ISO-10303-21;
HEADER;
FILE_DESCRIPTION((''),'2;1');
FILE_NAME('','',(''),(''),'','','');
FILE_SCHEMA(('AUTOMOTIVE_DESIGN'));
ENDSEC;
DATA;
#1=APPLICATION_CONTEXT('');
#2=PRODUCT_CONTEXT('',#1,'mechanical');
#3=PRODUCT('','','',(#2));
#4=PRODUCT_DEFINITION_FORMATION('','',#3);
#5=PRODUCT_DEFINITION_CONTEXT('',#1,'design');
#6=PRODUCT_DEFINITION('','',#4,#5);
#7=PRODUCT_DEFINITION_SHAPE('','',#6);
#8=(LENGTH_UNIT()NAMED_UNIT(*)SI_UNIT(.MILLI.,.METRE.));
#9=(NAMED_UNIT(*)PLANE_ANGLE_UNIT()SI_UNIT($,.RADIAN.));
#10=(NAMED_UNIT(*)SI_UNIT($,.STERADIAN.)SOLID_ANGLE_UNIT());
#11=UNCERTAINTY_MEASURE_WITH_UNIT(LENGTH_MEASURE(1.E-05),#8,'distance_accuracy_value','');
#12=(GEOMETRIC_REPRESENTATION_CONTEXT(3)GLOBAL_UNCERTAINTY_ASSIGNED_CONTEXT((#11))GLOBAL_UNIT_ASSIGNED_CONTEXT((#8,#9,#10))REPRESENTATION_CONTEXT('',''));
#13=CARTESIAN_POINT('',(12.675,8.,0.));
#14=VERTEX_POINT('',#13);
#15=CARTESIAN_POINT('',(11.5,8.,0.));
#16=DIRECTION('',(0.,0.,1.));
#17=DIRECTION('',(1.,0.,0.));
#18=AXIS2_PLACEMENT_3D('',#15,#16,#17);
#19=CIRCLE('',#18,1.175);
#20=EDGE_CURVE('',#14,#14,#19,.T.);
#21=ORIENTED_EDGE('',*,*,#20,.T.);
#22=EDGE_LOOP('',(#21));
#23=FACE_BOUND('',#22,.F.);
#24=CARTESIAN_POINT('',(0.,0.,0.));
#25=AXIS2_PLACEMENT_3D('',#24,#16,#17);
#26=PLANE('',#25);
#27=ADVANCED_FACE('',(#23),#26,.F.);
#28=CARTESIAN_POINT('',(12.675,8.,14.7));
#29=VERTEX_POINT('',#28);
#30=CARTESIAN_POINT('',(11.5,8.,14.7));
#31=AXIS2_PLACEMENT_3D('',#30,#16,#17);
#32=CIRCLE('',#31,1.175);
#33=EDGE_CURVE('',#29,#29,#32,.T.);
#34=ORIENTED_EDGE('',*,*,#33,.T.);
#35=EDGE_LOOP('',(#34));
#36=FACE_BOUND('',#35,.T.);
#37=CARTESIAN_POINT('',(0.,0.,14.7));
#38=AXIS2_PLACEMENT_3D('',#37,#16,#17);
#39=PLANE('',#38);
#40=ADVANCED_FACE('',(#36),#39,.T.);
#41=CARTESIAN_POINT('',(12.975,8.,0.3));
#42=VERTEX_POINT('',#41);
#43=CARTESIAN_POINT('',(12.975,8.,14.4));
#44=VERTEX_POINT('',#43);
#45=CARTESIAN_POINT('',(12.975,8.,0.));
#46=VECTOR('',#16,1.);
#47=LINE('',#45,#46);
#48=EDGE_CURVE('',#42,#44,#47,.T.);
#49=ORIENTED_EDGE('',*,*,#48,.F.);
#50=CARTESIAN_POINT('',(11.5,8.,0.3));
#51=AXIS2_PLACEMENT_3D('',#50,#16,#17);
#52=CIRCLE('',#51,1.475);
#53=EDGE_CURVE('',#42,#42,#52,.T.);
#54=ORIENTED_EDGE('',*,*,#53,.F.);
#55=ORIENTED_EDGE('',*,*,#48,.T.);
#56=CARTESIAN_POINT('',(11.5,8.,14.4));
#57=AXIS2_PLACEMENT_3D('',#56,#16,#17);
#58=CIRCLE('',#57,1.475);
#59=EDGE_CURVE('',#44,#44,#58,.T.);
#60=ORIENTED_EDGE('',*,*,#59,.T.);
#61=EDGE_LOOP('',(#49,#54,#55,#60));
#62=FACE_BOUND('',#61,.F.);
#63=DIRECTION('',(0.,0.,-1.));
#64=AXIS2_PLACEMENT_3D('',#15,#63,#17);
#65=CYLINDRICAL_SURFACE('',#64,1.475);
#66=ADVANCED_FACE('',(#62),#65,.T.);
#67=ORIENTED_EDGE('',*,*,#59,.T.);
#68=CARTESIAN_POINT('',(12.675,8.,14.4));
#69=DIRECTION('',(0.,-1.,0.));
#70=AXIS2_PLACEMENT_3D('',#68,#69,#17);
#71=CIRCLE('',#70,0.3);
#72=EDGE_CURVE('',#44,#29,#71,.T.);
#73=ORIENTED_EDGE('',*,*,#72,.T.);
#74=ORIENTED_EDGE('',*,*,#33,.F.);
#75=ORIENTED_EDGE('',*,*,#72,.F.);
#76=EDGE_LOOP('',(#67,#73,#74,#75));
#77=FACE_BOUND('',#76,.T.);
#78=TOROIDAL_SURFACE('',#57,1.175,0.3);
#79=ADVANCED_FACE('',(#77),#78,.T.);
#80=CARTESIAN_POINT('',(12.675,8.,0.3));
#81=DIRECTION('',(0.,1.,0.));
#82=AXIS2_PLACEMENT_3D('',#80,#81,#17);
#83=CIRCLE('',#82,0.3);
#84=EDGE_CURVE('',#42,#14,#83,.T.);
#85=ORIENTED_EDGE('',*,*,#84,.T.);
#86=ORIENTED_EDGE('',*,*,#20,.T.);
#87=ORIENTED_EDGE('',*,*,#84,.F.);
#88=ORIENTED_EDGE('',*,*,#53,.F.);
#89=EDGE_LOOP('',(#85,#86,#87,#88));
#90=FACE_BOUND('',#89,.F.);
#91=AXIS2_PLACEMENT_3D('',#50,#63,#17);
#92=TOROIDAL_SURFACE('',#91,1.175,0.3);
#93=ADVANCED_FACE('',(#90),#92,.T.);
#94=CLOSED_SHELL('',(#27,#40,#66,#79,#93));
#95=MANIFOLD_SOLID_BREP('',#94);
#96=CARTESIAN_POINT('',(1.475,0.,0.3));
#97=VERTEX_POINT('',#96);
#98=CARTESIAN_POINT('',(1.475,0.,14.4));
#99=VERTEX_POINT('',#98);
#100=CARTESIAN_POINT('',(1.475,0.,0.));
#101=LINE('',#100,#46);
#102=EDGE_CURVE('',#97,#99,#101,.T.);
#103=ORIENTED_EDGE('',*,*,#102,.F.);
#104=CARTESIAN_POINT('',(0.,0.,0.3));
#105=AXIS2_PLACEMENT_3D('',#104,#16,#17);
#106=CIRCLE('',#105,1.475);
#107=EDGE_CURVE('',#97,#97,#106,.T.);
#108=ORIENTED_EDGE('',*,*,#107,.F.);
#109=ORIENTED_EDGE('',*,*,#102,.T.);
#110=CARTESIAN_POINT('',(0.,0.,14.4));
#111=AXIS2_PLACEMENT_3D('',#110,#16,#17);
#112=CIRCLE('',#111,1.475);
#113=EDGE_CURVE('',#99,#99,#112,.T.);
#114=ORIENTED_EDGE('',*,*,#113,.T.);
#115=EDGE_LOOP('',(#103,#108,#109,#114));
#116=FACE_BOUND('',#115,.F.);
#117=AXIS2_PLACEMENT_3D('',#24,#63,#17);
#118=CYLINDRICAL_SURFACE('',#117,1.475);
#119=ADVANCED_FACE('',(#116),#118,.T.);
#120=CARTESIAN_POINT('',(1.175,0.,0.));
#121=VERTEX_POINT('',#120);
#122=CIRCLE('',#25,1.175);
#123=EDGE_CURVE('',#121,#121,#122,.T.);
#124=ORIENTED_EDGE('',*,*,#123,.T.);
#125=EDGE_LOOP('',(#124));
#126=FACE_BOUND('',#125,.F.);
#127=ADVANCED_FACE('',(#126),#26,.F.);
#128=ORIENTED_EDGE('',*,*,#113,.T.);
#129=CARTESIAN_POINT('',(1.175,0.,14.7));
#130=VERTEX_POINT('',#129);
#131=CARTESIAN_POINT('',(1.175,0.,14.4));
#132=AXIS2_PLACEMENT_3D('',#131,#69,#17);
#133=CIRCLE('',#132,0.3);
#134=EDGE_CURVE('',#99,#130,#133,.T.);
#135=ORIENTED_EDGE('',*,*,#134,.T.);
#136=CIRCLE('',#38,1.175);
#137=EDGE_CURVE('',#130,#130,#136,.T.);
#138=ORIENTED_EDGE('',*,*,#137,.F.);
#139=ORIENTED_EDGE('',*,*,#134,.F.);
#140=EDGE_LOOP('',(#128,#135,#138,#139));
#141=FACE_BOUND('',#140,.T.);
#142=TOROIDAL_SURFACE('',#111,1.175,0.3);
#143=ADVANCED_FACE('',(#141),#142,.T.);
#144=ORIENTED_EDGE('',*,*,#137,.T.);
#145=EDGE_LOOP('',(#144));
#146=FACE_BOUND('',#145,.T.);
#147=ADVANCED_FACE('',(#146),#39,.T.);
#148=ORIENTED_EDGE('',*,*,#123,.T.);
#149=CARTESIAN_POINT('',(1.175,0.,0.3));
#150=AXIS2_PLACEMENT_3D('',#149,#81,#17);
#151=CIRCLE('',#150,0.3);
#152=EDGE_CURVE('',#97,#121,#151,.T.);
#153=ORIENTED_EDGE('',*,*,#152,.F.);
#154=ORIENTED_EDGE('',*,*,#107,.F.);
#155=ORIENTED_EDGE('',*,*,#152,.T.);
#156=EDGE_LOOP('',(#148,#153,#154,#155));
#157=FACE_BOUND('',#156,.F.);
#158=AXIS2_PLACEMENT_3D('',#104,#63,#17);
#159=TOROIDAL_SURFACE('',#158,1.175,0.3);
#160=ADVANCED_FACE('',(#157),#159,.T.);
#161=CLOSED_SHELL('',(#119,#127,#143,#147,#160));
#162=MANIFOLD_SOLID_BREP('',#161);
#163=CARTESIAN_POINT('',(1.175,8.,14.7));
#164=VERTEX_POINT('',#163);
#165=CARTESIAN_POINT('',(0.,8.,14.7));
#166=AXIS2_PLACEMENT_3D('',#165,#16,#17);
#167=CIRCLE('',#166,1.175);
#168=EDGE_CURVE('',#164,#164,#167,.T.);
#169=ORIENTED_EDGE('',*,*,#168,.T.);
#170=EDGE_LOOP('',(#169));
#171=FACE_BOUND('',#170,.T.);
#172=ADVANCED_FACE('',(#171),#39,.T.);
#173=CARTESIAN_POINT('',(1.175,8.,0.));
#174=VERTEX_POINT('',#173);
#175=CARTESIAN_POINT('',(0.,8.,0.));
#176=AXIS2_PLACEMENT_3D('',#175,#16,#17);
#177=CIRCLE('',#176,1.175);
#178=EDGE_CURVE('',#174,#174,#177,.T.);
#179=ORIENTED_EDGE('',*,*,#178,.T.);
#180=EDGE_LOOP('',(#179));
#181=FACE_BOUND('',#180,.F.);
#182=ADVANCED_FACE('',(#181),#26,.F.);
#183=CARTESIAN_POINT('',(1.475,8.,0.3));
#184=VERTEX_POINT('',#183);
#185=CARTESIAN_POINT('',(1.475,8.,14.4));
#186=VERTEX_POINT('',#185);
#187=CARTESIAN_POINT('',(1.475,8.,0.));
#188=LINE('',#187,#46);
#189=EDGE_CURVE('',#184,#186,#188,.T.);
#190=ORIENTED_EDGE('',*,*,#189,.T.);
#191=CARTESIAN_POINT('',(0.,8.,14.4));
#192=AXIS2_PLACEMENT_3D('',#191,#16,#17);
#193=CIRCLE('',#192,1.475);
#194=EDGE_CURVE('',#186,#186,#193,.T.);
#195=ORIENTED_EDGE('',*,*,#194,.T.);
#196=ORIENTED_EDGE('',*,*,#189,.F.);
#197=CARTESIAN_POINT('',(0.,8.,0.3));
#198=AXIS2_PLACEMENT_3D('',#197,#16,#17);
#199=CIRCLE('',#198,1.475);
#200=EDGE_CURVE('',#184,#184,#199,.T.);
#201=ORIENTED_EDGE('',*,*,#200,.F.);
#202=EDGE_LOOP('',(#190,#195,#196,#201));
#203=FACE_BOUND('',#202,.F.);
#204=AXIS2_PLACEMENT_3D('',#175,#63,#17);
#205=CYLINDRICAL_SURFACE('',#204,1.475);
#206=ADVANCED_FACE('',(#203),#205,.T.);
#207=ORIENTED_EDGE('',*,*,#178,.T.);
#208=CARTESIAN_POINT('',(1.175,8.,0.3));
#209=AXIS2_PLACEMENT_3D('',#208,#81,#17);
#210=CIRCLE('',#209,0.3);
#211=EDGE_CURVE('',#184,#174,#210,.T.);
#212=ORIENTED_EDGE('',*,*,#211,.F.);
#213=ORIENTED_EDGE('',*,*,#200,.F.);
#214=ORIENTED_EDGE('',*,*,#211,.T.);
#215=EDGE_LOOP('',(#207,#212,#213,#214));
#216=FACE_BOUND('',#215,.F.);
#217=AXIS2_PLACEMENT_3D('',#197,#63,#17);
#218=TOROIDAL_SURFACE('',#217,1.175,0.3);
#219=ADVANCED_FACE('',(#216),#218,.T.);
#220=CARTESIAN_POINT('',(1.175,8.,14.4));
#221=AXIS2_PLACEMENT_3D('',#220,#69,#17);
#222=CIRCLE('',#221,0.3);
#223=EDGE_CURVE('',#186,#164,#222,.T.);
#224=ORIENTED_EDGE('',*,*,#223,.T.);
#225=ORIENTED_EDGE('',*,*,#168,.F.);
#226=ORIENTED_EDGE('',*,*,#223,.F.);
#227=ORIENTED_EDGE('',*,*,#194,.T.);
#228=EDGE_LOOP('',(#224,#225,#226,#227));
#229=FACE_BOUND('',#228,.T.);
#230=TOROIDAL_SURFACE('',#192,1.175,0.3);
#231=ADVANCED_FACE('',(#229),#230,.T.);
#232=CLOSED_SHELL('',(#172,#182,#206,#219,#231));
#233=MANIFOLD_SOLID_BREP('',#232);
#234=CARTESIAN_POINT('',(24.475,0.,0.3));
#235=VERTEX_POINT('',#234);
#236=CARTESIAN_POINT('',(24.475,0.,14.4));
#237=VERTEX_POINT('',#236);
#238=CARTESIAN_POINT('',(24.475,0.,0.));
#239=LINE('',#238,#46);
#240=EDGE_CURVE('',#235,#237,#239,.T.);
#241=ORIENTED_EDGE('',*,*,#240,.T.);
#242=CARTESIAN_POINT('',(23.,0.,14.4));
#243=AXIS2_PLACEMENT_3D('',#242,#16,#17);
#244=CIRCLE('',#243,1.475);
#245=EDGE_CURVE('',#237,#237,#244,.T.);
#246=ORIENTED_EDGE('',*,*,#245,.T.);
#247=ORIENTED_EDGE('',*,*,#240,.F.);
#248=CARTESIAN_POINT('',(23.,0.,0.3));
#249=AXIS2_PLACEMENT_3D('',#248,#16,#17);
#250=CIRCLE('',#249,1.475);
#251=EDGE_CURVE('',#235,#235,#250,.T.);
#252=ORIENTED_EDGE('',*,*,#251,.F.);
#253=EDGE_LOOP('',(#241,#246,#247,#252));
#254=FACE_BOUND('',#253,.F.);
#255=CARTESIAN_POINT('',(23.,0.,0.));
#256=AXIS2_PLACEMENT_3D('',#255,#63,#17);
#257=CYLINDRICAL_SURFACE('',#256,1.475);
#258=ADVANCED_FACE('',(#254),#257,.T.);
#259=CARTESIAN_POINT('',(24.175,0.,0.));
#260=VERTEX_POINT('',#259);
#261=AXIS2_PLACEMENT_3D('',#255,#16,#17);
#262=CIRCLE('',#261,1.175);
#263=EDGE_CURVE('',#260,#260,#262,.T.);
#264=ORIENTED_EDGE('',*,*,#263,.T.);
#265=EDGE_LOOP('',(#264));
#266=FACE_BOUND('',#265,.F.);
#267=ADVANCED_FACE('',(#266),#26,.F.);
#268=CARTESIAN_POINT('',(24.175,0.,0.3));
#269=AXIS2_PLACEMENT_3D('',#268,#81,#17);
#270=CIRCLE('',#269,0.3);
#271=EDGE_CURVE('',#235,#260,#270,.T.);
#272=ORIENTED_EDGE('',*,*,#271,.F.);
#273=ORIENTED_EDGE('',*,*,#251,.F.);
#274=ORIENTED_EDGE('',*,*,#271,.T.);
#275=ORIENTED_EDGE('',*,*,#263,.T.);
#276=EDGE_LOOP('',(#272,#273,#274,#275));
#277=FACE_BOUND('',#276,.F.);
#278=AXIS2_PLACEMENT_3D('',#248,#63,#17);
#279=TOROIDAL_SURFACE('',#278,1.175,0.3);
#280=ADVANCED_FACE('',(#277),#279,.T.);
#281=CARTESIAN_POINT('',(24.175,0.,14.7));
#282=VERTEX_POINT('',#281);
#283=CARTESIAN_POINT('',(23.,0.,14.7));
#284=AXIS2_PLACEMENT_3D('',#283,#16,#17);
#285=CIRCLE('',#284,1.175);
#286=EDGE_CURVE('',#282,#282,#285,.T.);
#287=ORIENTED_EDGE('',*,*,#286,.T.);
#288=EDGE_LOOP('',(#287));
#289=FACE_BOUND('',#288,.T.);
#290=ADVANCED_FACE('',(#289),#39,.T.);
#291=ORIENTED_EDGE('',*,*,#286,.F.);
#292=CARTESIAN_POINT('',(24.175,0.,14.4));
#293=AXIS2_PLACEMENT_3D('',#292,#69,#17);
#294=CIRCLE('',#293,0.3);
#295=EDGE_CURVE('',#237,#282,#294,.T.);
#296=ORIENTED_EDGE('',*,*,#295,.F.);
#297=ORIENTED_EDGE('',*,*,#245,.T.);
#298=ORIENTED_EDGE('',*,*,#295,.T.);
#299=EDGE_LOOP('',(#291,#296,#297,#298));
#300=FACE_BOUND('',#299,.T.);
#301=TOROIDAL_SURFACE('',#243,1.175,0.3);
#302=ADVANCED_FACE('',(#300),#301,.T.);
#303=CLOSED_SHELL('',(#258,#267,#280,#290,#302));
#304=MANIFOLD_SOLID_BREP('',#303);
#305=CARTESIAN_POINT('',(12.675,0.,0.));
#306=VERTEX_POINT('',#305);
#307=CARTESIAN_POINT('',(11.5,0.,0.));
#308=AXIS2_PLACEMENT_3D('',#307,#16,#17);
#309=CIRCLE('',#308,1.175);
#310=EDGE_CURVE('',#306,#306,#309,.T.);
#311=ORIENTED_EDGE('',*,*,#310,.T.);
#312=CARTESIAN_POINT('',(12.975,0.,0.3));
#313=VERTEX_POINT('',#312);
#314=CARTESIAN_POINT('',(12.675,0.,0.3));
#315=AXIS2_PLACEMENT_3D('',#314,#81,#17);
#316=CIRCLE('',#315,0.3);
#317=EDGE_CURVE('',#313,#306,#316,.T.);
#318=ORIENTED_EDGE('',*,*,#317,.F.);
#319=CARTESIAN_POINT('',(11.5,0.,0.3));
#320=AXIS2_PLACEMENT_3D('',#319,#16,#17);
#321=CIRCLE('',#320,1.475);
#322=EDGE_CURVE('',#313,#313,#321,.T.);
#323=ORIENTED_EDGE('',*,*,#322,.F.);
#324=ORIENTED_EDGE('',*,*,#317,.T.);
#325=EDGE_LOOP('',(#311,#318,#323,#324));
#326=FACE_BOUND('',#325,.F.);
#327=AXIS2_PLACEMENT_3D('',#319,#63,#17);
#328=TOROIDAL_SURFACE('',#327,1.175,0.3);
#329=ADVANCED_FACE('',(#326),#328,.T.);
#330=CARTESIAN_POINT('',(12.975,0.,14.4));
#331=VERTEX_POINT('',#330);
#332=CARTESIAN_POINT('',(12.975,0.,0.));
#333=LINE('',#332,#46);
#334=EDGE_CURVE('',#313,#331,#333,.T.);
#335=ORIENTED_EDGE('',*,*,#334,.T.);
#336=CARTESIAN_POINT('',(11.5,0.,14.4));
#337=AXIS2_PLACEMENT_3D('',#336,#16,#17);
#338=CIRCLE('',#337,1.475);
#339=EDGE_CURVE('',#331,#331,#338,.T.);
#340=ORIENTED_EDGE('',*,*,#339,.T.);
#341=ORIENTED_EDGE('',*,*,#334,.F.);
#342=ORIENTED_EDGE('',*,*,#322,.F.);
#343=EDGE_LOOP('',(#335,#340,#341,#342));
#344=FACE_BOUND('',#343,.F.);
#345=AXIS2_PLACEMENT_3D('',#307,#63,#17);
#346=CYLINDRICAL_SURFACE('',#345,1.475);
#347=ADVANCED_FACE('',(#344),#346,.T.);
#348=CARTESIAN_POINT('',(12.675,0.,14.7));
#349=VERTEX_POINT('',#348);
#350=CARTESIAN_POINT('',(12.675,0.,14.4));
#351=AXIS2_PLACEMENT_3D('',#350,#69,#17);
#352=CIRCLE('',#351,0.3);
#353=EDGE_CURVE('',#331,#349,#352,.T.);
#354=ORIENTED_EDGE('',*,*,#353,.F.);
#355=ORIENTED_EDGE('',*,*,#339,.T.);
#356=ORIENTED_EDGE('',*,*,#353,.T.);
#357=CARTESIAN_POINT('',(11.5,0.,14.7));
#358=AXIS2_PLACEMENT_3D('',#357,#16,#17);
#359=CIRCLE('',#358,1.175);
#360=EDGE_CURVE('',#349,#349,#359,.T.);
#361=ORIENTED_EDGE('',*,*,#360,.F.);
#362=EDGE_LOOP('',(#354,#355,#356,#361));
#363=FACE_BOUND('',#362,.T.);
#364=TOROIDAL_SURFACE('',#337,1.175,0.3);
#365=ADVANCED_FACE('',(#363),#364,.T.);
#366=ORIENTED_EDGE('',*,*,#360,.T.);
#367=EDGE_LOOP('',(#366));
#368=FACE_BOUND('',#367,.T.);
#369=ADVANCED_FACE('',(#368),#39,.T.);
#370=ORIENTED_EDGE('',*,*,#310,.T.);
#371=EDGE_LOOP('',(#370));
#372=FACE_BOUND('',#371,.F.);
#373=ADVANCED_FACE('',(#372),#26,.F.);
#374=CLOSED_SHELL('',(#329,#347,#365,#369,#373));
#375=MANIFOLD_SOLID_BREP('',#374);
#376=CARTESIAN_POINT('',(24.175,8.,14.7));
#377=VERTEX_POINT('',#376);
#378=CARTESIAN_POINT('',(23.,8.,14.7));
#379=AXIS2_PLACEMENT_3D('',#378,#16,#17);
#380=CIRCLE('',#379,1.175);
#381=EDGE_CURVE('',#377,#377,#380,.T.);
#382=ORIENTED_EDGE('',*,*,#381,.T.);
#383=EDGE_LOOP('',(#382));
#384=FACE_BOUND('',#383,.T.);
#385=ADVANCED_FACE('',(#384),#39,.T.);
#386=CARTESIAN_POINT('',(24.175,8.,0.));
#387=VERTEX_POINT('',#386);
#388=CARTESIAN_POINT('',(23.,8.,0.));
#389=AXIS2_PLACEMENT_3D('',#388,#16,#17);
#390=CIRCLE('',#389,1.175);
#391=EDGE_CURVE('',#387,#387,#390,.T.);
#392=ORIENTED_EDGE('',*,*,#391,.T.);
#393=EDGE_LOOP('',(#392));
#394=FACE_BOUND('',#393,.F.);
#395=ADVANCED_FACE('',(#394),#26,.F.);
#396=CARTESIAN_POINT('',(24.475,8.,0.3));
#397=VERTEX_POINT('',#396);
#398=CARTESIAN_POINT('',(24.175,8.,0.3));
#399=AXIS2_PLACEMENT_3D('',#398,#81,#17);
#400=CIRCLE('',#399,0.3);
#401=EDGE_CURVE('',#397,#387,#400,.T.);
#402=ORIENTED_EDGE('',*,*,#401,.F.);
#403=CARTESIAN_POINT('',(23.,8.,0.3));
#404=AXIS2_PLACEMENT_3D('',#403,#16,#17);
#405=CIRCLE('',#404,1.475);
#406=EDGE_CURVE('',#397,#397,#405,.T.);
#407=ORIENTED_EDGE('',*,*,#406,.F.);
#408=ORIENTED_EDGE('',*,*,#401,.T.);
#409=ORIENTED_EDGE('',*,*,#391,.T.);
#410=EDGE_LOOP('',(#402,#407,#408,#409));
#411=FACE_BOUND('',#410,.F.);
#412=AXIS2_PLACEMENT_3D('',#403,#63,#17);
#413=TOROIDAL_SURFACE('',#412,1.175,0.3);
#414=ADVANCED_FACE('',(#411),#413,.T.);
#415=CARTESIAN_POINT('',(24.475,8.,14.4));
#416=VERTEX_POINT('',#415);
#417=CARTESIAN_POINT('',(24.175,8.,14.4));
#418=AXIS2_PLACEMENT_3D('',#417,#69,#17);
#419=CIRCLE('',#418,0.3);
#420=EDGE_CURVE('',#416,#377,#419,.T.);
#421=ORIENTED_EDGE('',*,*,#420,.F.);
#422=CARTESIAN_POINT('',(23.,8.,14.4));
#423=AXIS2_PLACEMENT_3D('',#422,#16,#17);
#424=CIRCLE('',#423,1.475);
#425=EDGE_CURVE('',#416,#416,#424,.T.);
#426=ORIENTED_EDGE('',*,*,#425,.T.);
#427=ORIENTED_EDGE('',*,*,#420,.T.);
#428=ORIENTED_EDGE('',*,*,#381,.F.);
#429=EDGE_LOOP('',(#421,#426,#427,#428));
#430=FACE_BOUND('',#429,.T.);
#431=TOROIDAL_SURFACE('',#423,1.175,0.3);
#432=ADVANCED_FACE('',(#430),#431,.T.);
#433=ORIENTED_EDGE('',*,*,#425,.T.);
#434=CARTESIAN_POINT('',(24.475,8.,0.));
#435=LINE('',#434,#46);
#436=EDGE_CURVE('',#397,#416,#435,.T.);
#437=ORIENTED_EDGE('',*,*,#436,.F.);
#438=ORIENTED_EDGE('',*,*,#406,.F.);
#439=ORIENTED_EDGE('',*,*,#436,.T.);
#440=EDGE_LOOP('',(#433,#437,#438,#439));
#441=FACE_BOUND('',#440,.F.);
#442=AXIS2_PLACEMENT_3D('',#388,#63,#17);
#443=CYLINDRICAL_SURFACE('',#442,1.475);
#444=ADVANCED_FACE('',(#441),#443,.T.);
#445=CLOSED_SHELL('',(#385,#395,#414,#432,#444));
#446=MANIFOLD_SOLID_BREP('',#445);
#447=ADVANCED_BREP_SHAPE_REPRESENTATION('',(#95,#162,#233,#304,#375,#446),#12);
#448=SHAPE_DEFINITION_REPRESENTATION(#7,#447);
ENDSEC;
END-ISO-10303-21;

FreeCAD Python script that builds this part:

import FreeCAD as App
import Part
import Sketcher


def edges_at(feature, points):
    """Names of the edges that pass closest to the given points."""
    edges = feature.Shape.Edges
    near = lambda p: min(range(len(edges)), key=lambda i: edges[i].distToShape(Part.Vertex(*p))[0])
    return sorted({f"Edge{near(p) + 1}" for p in points})

doc = App.newDocument("Part")
body = doc.addObject("PartDesign::Body", "Body")
body.AllowCompound = True

# Sketch on XY plane
sketch1 = body.newObject("Sketcher::SketchObject", "Sketch")
sketch1.AttachmentSupport = (doc.getObject("XY_Plane"), [""])
sketch1.MapMode = "FlatFace"
sketch1.addGeometry(Part.Circle(App.Vector(0, 0, 0), App.Vector(0, 0, 1), 1.5), False)
sketch1.addGeometry(Part.Circle(App.Vector(11.5, 0, 0), App.Vector(0, 0, 1), 1.5), False)
sketch1.addGeometry(Part.Circle(App.Vector(23, 0, 0), App.Vector(0, 0, 1), 1.5), False)
sketch1.addGeometry(Part.Circle(App.Vector(0, 8, 0), App.Vector(0, 0, 1), 1.5), False)
sketch1.addGeometry(Part.Circle(App.Vector(11.5, 8, 0), App.Vector(0, 0, 1), 1.5), False)
sketch1.addGeometry(Part.Circle(App.Vector(23, 8, 0), App.Vector(0, 0, 1), 1.5), False)
sketch1.addConstraint(Sketcher.Constraint("Coincident", 0, 3, -1, 1))
sketch1.addConstraint(Sketcher.Constraint("Equal", 0, 1))
sketch1.addConstraint(Sketcher.Constraint("Equal", 1, 2))
sketch1.addConstraint(Sketcher.Constraint("Equal", 2, 3))
sketch1.addConstraint(Sketcher.Constraint("Equal", 3, 4))
sketch1.addConstraint(Sketcher.Constraint("Equal", 4, 5))
sketch1.addConstraint(Sketcher.Constraint("PointOnObject", 1, 3, -1))
sketch1.addConstraint(Sketcher.Constraint("PointOnObject", 2, 3, -1))
sketch1.addConstraint(Sketcher.Constraint("PointOnObject", 3, 3, -2))
sketch1.addConstraint(Sketcher.Constraint("Horizontal", 3, 3, 4, 3))
sketch1.addConstraint(Sketcher.Constraint("Horizontal", 4, 3, 5, 3))
sketch1.addConstraint(Sketcher.Constraint("Vertical", 1, 3, 4, 3))
sketch1.addConstraint(Sketcher.Constraint("Vertical", 2, 3, 5, 3))
sketch1.addConstraint(Sketcher.Constraint("Diameter", 0, 2.95))
sketch1.addConstraint(Sketcher.Constraint("DistanceX", -1, 1, 2, 3, 23.0))
sketch1.addConstraint(Sketcher.Constraint("DistanceY", -1, 1, 3, 3, 8.0))
sketch1.addConstraint(Sketcher.Constraint("DistanceX", -1, 1, 1, 3, 11.5))
pad1 = body.newObject("PartDesign::Pad", "Pad")
pad1.Profile = sketch1
pad1.Length = 14.7
doc.recompute()

fillet = body.newObject("PartDesign::Fillet", "Fillet")
fillet.Base = (pad1, edges_at(pad1, [
    (21.625, -0.533, 0),
    (21.625, -0.533, 14.7),
    (10.125, 7.467, 14.7),
    (10.125, 7.467, 0),
    (-1.375, -0.533, 0),
    (-1.375, -0.533, 14.7),
    (21.625, 7.467, 14.7),
    (21.625, 7.467, 0),
    (10.125, -0.533, 0),
    (10.125, -0.533, 14.7),
    (-1.375, 7.467, 14.7),
    (-1.375, 7.467, 0),
]))
fillet.Radius = 0.3

doc.recompute()
